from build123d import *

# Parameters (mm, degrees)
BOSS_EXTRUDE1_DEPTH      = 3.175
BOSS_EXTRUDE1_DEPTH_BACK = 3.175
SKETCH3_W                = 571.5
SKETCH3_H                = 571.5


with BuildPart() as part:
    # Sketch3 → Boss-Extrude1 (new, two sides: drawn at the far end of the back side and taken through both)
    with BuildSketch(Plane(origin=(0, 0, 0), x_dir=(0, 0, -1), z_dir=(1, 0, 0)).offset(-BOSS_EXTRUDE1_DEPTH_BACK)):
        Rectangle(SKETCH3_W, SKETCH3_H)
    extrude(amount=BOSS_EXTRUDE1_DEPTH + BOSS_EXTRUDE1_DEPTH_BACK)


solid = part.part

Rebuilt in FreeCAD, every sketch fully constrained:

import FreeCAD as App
import Part
import Sketcher
Q = App.Units.Quantity


def add_polygon(sketch, points):
    """Adds a closed chain of lines whose ends are joined by coincident constraints."""
    first, n = sketch.GeometryCount, len(points)
    for a, b in zip(points, points[1:] + points[:1]):
        sketch.addGeometry(Part.LineSegment(App.Vector(*a, 0), App.Vector(*b, 0)), False)
    for i in range(n):
        sketch.addConstraint(Sketcher.Constraint("Coincident", first + i, 2, first + (i + 1) % n, 1))

doc = App.newDocument("Part")
body = doc.addObject("PartDesign::Body", "Body")

sketch1 = body.newObject("Sketcher::SketchObject", "Sketch")
sketch1.AttachmentSupport = (doc.getObject("YZ_Plane"), [""])
sketch1.MapMode = "FlatFace"
add_polygon(sketch1, [(285.75, 285.75), (-285.75, 285.75), (-285.75, -285.75), (285.75, -285.75)])
sketch1.addConstraint(Sketcher.Constraint("Horizontal", 0))
sketch1.addConstraint(Sketcher.Constraint("Vertical", 1))
sketch1.addConstraint(Sketcher.Constraint("Horizontal", 2))
sketch1.addConstraint(Sketcher.Constraint("Vertical", 3))
sketch1.addConstraint(Sketcher.Constraint("Symmetric", 0, 2, 2, 2, -1, 1))
sketch1.addConstraint(Sketcher.Constraint("Equal", 2, 1))
sketch1.addConstraint(Sketcher.Constraint("DistanceX", 0, 2, 0, 1, Q("22.5 in")))
pad1 = body.newObject("PartDesign::Pad", "Pad")
pad1.Profile = sketch1
pad1.Type = "TwoLengths"
pad1.Length = Q("0.125 in")
pad1.Length2 = Q("0.125 in")

doc.recompute()
